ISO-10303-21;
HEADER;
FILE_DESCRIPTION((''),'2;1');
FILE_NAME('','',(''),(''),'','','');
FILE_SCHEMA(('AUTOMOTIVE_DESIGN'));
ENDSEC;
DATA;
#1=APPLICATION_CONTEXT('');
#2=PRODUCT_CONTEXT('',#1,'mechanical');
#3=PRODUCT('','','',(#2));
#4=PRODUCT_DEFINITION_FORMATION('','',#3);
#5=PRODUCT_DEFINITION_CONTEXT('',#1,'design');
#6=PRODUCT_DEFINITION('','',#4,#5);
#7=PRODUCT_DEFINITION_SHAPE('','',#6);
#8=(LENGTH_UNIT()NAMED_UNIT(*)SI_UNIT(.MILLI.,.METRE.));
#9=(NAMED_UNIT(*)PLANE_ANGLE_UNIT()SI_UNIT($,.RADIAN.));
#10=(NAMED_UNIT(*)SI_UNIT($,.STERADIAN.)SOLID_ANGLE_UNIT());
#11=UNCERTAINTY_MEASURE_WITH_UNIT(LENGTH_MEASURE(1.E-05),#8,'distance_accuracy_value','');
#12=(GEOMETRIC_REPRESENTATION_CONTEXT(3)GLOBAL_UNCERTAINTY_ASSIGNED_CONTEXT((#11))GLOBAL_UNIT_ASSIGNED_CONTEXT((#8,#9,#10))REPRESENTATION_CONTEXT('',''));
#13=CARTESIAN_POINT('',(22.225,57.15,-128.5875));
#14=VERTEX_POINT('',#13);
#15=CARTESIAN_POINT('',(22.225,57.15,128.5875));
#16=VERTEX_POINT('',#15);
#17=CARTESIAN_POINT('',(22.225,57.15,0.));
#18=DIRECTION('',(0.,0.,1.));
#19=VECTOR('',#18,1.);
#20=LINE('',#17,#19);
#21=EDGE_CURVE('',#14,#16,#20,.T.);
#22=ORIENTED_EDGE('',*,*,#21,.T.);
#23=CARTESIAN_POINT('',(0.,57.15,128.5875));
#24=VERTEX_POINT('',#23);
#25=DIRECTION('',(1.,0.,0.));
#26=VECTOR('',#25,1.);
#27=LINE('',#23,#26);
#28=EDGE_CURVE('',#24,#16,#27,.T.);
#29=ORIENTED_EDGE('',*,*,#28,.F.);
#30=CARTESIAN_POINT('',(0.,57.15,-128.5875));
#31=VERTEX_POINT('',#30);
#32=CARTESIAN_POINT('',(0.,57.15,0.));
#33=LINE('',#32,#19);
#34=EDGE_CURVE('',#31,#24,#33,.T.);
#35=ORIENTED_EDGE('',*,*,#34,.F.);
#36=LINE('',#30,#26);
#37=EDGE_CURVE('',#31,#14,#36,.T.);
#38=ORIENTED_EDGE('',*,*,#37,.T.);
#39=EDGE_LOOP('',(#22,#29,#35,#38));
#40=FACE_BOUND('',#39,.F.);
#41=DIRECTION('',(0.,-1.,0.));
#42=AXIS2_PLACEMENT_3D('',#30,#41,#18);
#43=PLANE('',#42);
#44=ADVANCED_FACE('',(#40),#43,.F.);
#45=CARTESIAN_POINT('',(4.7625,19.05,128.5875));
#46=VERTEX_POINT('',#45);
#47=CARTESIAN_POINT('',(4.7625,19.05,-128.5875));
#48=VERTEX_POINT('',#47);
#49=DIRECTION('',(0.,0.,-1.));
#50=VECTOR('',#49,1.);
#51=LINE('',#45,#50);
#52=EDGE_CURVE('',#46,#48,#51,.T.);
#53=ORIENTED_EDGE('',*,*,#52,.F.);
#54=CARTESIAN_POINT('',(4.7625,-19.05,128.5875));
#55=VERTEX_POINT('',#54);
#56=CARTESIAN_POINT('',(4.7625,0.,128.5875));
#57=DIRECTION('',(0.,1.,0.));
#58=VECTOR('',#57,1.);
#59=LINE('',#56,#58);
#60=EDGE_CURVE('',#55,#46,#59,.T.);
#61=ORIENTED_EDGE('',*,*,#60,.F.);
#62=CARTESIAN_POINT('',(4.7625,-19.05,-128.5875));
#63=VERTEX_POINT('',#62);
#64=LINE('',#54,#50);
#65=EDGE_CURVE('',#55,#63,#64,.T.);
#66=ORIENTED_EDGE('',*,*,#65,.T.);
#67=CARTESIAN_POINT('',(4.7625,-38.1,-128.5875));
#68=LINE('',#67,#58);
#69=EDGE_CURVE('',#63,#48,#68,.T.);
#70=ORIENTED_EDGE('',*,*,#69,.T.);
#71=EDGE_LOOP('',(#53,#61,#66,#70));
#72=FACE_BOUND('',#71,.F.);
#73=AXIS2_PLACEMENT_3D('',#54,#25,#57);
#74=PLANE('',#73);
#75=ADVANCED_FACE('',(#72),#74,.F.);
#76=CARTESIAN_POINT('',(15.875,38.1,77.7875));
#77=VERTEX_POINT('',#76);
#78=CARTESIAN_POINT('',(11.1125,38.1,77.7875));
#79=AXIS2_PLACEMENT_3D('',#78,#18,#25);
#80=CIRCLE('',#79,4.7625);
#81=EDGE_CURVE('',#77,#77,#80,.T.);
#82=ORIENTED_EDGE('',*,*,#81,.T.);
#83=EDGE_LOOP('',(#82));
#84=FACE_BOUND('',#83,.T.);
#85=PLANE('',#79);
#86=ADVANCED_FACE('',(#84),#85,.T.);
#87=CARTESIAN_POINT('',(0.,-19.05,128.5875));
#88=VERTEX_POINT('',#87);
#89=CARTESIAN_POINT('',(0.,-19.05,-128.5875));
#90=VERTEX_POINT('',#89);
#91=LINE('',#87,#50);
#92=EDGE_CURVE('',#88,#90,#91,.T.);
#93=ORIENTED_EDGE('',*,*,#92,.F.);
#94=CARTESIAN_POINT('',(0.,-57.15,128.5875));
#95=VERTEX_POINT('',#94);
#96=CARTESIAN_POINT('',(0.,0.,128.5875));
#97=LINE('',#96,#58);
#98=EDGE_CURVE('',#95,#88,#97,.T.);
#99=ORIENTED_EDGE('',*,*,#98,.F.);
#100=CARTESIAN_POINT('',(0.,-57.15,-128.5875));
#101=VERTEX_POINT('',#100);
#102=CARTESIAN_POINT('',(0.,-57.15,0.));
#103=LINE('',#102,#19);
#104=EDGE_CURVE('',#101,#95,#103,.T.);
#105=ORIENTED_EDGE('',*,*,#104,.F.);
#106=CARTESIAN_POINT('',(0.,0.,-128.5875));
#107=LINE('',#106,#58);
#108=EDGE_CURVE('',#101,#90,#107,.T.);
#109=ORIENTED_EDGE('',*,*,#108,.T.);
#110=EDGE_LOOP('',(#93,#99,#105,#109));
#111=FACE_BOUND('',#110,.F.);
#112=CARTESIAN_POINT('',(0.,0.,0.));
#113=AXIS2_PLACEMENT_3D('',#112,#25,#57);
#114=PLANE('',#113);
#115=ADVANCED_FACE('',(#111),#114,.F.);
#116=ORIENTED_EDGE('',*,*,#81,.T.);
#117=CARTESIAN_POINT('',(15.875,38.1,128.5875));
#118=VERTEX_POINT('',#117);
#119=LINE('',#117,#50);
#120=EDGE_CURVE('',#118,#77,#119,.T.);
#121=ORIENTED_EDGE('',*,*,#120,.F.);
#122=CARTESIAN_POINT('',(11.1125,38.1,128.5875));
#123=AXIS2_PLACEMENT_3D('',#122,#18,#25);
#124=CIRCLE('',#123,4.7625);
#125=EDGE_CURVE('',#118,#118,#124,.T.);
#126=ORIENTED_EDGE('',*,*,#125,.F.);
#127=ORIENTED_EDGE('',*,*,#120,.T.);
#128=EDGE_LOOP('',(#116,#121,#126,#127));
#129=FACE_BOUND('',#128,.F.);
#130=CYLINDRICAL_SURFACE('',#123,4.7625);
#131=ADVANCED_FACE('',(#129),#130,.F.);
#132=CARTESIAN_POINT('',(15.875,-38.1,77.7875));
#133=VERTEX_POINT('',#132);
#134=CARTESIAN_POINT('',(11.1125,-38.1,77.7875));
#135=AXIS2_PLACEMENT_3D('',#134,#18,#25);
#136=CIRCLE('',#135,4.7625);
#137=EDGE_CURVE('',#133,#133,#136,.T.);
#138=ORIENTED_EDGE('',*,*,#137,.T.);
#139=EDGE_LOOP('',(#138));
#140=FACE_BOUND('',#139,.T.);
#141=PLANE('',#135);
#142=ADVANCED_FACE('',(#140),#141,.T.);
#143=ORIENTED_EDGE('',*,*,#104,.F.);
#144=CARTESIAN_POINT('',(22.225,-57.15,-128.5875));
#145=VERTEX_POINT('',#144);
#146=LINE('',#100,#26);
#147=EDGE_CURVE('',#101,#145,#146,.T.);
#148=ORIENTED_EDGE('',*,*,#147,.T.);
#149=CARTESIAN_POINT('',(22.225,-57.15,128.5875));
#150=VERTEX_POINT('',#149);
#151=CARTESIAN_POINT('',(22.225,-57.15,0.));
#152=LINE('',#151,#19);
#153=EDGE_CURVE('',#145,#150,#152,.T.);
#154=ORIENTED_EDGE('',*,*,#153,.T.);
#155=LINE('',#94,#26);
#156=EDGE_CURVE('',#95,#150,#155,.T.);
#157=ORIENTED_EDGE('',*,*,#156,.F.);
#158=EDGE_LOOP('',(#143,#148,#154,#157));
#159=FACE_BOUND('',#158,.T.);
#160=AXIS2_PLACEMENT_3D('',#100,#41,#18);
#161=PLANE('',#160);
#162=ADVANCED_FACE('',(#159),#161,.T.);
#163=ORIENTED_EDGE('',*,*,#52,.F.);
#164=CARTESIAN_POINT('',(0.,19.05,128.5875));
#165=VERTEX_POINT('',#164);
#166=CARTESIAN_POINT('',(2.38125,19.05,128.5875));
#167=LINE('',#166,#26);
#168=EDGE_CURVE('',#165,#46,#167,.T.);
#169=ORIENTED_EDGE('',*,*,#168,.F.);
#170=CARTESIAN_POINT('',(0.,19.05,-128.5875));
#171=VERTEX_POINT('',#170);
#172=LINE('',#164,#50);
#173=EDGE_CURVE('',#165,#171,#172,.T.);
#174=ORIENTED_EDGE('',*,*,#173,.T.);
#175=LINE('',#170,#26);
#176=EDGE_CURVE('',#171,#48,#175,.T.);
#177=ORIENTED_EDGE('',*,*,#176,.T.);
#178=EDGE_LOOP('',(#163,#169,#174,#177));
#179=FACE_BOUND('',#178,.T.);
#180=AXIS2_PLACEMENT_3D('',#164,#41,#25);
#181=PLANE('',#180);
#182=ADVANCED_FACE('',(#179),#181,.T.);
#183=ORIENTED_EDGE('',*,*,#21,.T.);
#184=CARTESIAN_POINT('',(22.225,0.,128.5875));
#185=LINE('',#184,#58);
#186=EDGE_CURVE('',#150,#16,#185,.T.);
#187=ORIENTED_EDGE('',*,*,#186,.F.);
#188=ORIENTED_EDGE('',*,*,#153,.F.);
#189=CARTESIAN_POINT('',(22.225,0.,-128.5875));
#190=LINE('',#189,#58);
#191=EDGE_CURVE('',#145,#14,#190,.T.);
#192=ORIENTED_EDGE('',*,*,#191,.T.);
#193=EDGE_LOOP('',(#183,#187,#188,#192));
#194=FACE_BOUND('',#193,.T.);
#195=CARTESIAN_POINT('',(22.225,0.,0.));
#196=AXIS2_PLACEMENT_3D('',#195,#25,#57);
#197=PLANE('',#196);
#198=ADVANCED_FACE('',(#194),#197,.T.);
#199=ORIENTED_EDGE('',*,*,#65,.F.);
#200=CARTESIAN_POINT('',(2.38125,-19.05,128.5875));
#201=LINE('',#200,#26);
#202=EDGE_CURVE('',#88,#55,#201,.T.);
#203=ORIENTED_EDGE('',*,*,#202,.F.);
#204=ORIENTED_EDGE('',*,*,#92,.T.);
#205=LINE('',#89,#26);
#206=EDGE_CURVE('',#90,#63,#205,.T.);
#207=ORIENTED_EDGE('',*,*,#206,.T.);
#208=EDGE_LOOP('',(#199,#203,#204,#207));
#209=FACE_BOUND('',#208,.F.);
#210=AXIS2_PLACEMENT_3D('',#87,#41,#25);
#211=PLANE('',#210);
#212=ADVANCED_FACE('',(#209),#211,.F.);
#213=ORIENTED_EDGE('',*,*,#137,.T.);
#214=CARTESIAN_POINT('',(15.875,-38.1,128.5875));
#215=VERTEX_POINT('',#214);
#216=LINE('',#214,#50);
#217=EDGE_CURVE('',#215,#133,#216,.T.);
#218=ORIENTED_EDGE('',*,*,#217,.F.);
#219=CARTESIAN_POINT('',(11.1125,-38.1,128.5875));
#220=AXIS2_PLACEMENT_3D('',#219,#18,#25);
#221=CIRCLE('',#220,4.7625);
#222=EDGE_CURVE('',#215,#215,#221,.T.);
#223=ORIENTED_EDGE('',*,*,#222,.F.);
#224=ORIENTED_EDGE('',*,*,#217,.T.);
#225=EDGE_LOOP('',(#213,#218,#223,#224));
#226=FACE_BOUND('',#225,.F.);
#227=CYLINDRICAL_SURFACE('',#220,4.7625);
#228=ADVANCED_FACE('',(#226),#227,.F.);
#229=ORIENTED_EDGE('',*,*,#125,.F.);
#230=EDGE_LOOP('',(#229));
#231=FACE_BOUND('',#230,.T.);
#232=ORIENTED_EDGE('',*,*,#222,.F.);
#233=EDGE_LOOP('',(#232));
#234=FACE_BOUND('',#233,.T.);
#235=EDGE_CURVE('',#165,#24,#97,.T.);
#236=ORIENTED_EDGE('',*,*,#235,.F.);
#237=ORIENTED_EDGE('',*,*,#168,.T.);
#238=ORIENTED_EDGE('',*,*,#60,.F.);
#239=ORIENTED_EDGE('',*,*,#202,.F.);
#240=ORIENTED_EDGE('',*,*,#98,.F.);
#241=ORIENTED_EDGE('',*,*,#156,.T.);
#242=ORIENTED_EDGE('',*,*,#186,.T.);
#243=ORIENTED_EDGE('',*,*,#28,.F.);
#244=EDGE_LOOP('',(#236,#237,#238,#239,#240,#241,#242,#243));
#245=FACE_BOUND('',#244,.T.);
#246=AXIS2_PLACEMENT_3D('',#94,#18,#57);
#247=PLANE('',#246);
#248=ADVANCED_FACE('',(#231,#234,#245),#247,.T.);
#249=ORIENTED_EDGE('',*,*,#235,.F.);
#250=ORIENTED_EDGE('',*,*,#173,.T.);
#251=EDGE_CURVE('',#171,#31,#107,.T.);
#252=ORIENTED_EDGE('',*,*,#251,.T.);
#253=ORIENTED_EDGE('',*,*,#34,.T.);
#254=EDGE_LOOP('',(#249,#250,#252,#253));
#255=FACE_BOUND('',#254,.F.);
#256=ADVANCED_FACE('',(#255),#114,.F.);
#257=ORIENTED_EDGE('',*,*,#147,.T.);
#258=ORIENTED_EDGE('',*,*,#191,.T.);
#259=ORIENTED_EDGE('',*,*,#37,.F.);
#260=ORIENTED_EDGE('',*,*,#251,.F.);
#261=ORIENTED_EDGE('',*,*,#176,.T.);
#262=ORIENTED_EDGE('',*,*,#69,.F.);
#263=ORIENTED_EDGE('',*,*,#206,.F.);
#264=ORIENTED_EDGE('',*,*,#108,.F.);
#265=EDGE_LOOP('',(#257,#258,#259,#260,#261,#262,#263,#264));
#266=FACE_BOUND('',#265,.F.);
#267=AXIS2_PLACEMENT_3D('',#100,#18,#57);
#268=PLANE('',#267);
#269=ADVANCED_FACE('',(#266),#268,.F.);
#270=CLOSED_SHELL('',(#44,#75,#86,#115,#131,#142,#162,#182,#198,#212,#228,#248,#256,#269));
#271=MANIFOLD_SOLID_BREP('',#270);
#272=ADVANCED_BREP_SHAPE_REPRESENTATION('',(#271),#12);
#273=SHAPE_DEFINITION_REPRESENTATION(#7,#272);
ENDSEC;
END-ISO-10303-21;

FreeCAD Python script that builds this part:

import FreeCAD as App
import Part
import Sketcher
Q = App.Units.Quantity

doc = App.newDocument("Part")
body = doc.addObject("PartDesign::Body", "Body")

# Sketch on YZ plane
sketch1 = doc.addObject("Sketcher::SketchObject", "Sketch")
body.addObject(sketch1)
sketch1.AttachmentSupport = (doc.YZ_Plane, [""])
sketch1.MapMode = "FlatFace"
sketch1.addGeometry(Part.LineSegment(App.Vector(-57, 129, 0), App.Vector(-57, -129, 0)), False)
sketch1.addGeometry(Part.LineSegment(App.Vector(-57, -129, 0), App.Vector(57, -129, 0)), False)
sketch1.addGeometry(Part.LineSegment(App.Vector(57, -129, 0), App.Vector(57, 129, 0)), False)
sketch1.addGeometry(Part.LineSegment(App.Vector(57, 129, 0), App.Vector(-57, 129, 0)), False)
sketch1.addConstraint(Sketcher.Constraint("Coincident", 0, 2, 1, 1))
sketch1.addConstraint(Sketcher.Constraint("Coincident", 1, 2, 2, 1))
sketch1.addConstraint(Sketcher.Constraint("Coincident", 2, 2, 3, 1))
sketch1.addConstraint(Sketcher.Constraint("Coincident", 3, 2, 0, 1))
sketch1.addConstraint(Sketcher.Constraint("Vertical", 0))
sketch1.addConstraint(Sketcher.Constraint("Horizontal", 1))
sketch1.addConstraint(Sketcher.Constraint("Vertical", 2))
sketch1.addConstraint(Sketcher.Constraint("Horizontal", 3))
sketch1.addConstraint(Sketcher.Constraint("Symmetric", 0, 2, 2, 2, -1, 1))
sketch1.addConstraint(Sketcher.Constraint("DistanceX", 1, 1, 1, 2, Q("4.5 in")))
sketch1.addConstraint(Sketcher.Constraint("DistanceY", 0, 2, 0, 1, Q("10.125 in")))
pad1 = doc.addObject("PartDesign::Pad", "Pad")
body.addObject(pad1)
pad1.Profile = sketch1
pad1.Length = Q("0.875 in")

# Sketch on XY plane
sketch2 = doc.addObject("Sketcher::SketchObject", "Sketch001")
body.addObject(sketch2)
sketch2.AttachmentSupport = (doc.XY_Plane, [""])
sketch2.MapMode = "FlatFace"
sketch2.AttachmentOffset = App.Placement(App.Vector(0, 0, 5.0625 * 25.4), App.Rotation())
sketch2.addGeometry(Part.LineSegment(App.Vector(0, 19.1, 0), App.Vector(0, -19.1, 0)), False)
sketch2.addGeometry(Part.LineSegment(App.Vector(0, -19.1, 0), App.Vector(4.8, -19.1, 0)), False)
sketch2.addGeometry(Part.LineSegment(App.Vector(4.8, -19.1, 0), App.Vector(4.8, 19.1, 0)), False)
sketch2.addGeometry(Part.LineSegment(App.Vector(4.8, 19.1, 0), App.Vector(0, 19.1, 0)), False)
sketch2.addConstraint(Sketcher.Constraint("Coincident", 0, 2, 1, 1))
sketch2.addConstraint(Sketcher.Constraint("Coincident", 1, 2, 2, 1))
sketch2.addConstraint(Sketcher.Constraint("Coincident", 2, 2, 3, 1))
sketch2.addConstraint(Sketcher.Constraint("Coincident", 3, 2, 0, 1))
sketch2.addConstraint(Sketcher.Constraint("Vertical", 0))
sketch2.addConstraint(Sketcher.Constraint("Horizontal", 1))
sketch2.addConstraint(Sketcher.Constraint("Vertical", 2))
sketch2.addConstraint(Sketcher.Constraint("Horizontal", 3))
sketch2.addConstraint(Sketcher.Constraint("Symmetric", 0, 2, 3, 2, -1, 1))
sketch2.addConstraint(Sketcher.Constraint("DistanceY", 0, 2, 0, 1, Q("1.5 in")))
sketch2.addConstraint(Sketcher.Constraint("DistanceX", 1, 1, 1, 2, Q("0.1875 in")))
pocket1 = doc.addObject("PartDesign::Pocket", "Pocket")
body.addObject(pocket1)
pocket1.Profile = sketch2
pocket1.Type = "ThroughAll"

# Sketch on XY plane
sketch3 = doc.addObject("Sketcher::SketchObject", "Sketch002")
body.addObject(sketch3)
sketch3.AttachmentSupport = (doc.XY_Plane, [""])
sketch3.MapMode = "FlatFace"
sketch3.AttachmentOffset = App.Placement(App.Vector(0, 0, 5.0625 * 25.4), App.Rotation())
sketch3.addGeometry(Part.Circle(App.Vector(11.1, -38.1, 0), App.Vector(0, 0, 1), 4.8), False)
sketch3.addGeometry(Part.Circle(App.Vector(11.1, 38.1, 0), App.Vector(0, 0, 1), 4.8), False)
sketch3.addConstraint(Sketcher.Constraint("Equal", 0, 1))
sketch3.addConstraint(Sketcher.Constraint("Symmetric", 0, 3, 1, 3, -1))
sketch3.addConstraint(Sketcher.Constraint("Diameter", 0, Q("0.375 in")))
sketch3.addConstraint(Sketcher.Constraint("DistanceY", 0, 3, 1, 3, Q("3 in")))
sketch3.addConstraint(Sketcher.Constraint("DistanceX", -1, 1, 0, 3, Q("0.4375 in")))
pocket2 = doc.addObject("PartDesign::Pocket", "Pocket001")
body.addObject(pocket2)
pocket2.Profile = sketch3
pocket2.Length = Q("2 in")

doc.recompute()
